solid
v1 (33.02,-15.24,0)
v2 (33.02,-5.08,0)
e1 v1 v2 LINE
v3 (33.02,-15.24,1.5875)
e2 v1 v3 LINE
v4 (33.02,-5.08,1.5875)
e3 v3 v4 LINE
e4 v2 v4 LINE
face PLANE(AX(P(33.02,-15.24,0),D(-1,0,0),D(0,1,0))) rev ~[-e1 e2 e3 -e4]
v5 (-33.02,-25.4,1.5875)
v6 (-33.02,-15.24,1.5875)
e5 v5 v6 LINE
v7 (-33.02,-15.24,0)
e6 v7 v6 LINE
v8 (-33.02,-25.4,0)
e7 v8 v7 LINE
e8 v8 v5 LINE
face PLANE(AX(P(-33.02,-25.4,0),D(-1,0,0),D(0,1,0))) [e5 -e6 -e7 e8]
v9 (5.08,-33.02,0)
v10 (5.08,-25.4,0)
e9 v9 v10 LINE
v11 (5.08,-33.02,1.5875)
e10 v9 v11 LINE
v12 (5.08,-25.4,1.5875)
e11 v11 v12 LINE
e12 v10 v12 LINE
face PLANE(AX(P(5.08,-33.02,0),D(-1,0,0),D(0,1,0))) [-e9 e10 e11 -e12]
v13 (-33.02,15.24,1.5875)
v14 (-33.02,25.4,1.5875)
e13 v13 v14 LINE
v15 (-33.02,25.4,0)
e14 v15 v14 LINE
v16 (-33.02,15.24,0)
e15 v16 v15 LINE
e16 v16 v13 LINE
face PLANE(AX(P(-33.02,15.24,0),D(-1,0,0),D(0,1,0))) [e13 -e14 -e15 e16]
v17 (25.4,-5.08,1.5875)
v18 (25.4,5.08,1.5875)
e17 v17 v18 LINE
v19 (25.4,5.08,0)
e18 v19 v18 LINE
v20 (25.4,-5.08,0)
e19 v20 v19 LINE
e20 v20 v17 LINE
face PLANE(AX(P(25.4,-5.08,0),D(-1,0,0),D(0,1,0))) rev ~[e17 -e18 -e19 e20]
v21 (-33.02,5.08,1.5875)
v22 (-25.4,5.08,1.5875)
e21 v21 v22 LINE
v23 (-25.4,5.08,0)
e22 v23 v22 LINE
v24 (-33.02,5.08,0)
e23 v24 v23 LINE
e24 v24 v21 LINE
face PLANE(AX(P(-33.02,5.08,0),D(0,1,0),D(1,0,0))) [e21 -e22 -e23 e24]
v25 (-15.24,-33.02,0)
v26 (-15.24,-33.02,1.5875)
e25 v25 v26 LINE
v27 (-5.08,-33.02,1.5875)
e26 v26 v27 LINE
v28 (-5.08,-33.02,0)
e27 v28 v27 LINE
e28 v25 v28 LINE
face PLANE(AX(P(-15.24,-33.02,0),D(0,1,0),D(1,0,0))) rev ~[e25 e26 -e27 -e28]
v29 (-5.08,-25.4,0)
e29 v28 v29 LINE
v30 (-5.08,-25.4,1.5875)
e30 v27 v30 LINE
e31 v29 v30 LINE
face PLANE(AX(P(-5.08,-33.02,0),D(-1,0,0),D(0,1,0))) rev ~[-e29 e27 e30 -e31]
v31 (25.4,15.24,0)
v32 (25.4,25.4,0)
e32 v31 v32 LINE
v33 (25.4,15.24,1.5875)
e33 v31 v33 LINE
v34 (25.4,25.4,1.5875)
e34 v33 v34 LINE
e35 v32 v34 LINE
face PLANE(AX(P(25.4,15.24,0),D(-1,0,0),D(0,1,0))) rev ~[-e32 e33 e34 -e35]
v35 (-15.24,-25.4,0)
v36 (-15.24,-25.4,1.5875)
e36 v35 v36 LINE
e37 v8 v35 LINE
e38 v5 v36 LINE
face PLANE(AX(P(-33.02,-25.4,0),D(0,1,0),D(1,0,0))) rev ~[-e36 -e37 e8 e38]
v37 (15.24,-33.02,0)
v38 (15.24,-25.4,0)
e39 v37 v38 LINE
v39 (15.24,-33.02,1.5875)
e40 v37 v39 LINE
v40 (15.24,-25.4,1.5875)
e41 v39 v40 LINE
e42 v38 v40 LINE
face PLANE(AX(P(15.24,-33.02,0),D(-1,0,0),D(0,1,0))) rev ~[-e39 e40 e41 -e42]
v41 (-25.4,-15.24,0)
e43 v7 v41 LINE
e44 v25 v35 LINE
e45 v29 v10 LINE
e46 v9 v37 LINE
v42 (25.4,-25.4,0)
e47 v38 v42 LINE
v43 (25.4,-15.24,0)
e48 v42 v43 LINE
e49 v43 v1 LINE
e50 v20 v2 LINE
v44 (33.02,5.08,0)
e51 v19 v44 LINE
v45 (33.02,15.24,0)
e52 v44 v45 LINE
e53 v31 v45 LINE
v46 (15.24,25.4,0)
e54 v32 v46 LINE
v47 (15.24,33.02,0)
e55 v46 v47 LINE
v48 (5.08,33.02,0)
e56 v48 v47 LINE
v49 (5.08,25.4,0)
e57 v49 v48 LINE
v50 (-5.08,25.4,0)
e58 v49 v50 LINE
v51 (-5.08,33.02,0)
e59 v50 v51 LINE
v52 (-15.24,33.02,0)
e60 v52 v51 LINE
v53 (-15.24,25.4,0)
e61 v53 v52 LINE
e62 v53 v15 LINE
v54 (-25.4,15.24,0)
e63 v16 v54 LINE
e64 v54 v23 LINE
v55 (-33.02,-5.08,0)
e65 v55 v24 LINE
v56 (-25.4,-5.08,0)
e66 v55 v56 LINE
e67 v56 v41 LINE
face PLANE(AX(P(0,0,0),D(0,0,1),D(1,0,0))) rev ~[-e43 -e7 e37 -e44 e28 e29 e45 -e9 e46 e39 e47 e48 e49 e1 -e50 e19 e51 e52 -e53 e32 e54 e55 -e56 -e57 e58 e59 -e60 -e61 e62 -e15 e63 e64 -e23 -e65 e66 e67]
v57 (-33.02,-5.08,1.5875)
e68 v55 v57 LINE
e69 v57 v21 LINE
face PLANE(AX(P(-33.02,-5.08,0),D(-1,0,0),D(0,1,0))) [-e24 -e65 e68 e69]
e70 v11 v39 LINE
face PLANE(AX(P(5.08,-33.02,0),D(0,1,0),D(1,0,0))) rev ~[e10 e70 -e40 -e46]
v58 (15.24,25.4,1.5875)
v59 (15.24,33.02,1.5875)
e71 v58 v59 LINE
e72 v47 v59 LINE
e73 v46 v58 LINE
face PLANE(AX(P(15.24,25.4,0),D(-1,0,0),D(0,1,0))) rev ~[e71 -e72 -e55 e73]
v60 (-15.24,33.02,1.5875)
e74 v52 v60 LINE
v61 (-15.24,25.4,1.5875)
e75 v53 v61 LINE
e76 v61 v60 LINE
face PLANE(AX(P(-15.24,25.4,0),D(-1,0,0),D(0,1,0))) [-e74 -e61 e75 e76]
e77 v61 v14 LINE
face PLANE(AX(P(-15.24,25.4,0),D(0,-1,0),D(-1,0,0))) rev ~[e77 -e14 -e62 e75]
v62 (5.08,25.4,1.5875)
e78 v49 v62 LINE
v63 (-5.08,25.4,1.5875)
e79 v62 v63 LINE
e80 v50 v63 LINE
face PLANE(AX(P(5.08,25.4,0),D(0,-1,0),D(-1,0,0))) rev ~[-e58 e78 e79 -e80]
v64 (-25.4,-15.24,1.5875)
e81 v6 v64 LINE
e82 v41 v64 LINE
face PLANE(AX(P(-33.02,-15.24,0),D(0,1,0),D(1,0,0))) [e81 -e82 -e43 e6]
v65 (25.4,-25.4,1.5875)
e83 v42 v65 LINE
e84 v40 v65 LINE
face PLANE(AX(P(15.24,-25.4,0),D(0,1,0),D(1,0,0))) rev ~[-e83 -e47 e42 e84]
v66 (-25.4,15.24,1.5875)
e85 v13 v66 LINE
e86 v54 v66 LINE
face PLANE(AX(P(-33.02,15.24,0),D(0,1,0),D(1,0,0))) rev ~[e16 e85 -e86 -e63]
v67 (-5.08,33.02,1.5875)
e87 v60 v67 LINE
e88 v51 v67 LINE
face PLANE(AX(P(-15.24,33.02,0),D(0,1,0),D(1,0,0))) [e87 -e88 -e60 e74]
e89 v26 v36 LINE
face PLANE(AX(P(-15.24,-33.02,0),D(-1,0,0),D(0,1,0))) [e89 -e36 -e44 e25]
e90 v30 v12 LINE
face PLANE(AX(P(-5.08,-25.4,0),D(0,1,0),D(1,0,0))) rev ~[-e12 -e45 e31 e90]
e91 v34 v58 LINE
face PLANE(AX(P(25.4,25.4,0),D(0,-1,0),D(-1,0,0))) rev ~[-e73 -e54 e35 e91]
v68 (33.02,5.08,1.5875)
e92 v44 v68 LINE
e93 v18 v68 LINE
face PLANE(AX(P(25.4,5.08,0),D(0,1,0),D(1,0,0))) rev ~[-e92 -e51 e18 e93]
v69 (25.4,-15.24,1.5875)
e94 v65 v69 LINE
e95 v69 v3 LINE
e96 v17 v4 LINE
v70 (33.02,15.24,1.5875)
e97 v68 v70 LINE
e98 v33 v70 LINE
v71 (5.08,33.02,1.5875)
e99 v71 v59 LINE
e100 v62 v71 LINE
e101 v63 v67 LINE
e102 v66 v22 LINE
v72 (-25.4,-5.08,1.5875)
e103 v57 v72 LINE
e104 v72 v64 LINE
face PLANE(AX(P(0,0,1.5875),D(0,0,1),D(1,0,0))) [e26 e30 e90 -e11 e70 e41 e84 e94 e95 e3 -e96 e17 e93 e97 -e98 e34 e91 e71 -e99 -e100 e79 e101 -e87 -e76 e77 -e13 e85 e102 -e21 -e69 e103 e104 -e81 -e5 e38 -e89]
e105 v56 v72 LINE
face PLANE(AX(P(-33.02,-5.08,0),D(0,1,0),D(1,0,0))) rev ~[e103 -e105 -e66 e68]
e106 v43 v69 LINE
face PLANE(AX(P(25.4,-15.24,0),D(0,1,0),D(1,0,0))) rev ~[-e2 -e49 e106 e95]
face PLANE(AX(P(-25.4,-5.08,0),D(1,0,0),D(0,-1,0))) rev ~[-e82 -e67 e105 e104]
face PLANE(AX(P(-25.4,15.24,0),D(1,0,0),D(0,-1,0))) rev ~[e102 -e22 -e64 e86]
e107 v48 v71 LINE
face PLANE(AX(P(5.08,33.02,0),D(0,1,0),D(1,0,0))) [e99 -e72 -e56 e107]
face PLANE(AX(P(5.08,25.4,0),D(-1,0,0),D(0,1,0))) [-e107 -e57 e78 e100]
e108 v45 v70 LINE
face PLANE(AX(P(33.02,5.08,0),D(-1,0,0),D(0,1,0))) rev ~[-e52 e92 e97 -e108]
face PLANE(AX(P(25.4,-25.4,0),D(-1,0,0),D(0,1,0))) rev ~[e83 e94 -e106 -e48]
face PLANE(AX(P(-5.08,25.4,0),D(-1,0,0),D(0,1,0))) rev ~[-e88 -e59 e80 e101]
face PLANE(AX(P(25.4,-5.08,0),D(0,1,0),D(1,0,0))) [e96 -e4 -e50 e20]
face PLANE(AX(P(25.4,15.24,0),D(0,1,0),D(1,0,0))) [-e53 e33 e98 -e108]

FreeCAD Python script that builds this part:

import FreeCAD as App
import Part
import Sketcher

V = App.Vector
Q = App.Units.Quantity

doc = App.newDocument("Part")
body = doc.addObject("PartDesign::Body", "Body")

# Sketch on XY plane
sketch1 = body.newObject("Sketcher::SketchObject", "Sketch")
sketch1.AttachmentSupport = (doc.getObject("XY_Plane"), [""])
sketch1.MapMode = "FlatFace"
sketch1.addGeometry([
    Part.LineSegment(V(25, 25, 0), V(15, 25, 0)),  # 0
    Part.LineSegment(V(15, 25, 0), V(15, 33, 0)),  # 1
    Part.LineSegment(V(15, 33, 0), V(5, 33, 0)),  # 2
    Part.LineSegment(V(5, 33, 0), V(5, 25, 0)),  # 3
    Part.LineSegment(V(5, 25, 0), V(-5, 25, 0)),  # 4
    Part.LineSegment(V(-5, 25, 0), V(-5, 33, 0)),  # 5
    Part.LineSegment(V(-5, 33, 0), V(-15, 33, 0)),  # 6
    Part.LineSegment(V(-15, 33, 0), V(-15, 25, 0)),  # 7
    Part.LineSegment(V(-15, 25, 0), V(-33, 25, 0)),  # 8
    Part.LineSegment(V(-33, 25, 0), V(-33, 15, 0)),  # 9
    Part.LineSegment(V(-33, 15, 0), V(-25, 15, 0)),  # 10
    Part.LineSegment(V(-25, 15, 0), V(-25, 5, 0)),  # 11
    Part.LineSegment(V(-25, 5, 0), V(-33, 5, 0)),  # 12
    Part.LineSegment(V(-33, 5, 0), V(-33, -5, 0)),  # 13
    Part.LineSegment(V(-33, -5, 0), V(-25, -5, 0)),  # 14
    Part.LineSegment(V(-25, -5, 0), V(-25, -15, 0)),  # 15
    Part.LineSegment(V(-25, -15, 0), V(-33, -15, 0)),  # 16
    Part.LineSegment(V(-33, -15, 0), V(-33, -25, 0)),  # 17
    Part.LineSegment(V(-33, -25, 0), V(-15, -25, 0)),  # 18
    Part.LineSegment(V(-15, -25, 0), V(-15, -33, 0)),  # 19
    Part.LineSegment(V(-15, -33, 0), V(-5, -33, 0)),  # 20
    Part.LineSegment(V(-5, -33, 0), V(-5, -25, 0)),  # 21
    Part.LineSegment(V(-5, -25, 0), V(5, -25, 0)),  # 22
    Part.LineSegment(V(5, -25, 0), V(5, -33, 0)),  # 23
    Part.LineSegment(V(5, -33, 0), V(15, -33, 0)),  # 24
    Part.LineSegment(V(15, -33, 0), V(15, -25, 0)),  # 25
    Part.LineSegment(V(15, -25, 0), V(25, -25, 0)),  # 26
    Part.LineSegment(V(25, -25, 0), V(25, -15, 0)),  # 27
    Part.LineSegment(V(25, -15, 0), V(33, -15, 0)),  # 28
    Part.LineSegment(V(33, -15, 0), V(33, -5, 0)),  # 29
    Part.LineSegment(V(33, -5, 0), V(25, -5, 0)),  # 30
    Part.LineSegment(V(25, -5, 0), V(25, 5, 0)),  # 31
    Part.LineSegment(V(25, 5, 0), V(33, 5, 0)),  # 32
    Part.LineSegment(V(33, 5, 0), V(33, 15, 0)),  # 33
    Part.LineSegment(V(33, 15, 0), V(25, 15, 0)),  # 34
    Part.LineSegment(V(25, 15, 0), V(25, 25, 0)),  # 35
], False)
sketch1.addConstraint([
    Sketcher.Constraint("Coincident", 0, 2, 1, 1),
    Sketcher.Constraint("Coincident", 1, 2, 2, 1),
    Sketcher.Constraint("Coincident", 2, 2, 3, 1),
    Sketcher.Constraint("Coincident", 3, 2, 4, 1),
    Sketcher.Constraint("Coincident", 4, 2, 5, 1),
    Sketcher.Constraint("Coincident", 5, 2, 6, 1),
    Sketcher.Constraint("Coincident", 6, 2, 7, 1),
    Sketcher.Constraint("Coincident", 7, 2, 8, 1),
    Sketcher.Constraint("Coincident", 8, 2, 9, 1),
    Sketcher.Constraint("Coincident", 9, 2, 10, 1),
    Sketcher.Constraint("Coincident", 10, 2, 11, 1),
    Sketcher.Constraint("Coincident", 11, 2, 12, 1),
    Sketcher.Constraint("Coincident", 12, 2, 13, 1),
    Sketcher.Constraint("Coincident", 13, 2, 14, 1),
    Sketcher.Constraint("Coincident", 14, 2, 15, 1),
    Sketcher.Constraint("Coincident", 15, 2, 16, 1),
    Sketcher.Constraint("Coincident", 16, 2, 17, 1),
    Sketcher.Constraint("Coincident", 17, 2, 18, 1),
    Sketcher.Constraint("Coincident", 18, 2, 19, 1),
    Sketcher.Constraint("Coincident", 19, 2, 20, 1),
    Sketcher.Constraint("Coincident", 20, 2, 21, 1),
    Sketcher.Constraint("Coincident", 21, 2, 22, 1),
    Sketcher.Constraint("Coincident", 22, 2, 23, 1),
    Sketcher.Constraint("Coincident", 23, 2, 24, 1),
    Sketcher.Constraint("Coincident", 24, 2, 25, 1),
    Sketcher.Constraint("Coincident", 25, 2, 26, 1),
    Sketcher.Constraint("Coincident", 26, 2, 27, 1),
    Sketcher.Constraint("Coincident", 27, 2, 28, 1),
    Sketcher.Constraint("Coincident", 28, 2, 29, 1),
    Sketcher.Constraint("Coincident", 29, 2, 30, 1),
    Sketcher.Constraint("Coincident", 30, 2, 31, 1),
    Sketcher.Constraint("Coincident", 31, 2, 32, 1),
    Sketcher.Constraint("Coincident", 32, 2, 33, 1),
    Sketcher.Constraint("Coincident", 33, 2, 34, 1),
    Sketcher.Constraint("Coincident", 34, 2, 35, 1),
    Sketcher.Constraint("Coincident", 35, 2, 0, 1),
    Sketcher.Constraint("Horizontal", 0),
    Sketcher.Constraint("Vertical", 1),
    Sketcher.Constraint("Horizontal", 2),
    Sketcher.Constraint("Vertical", 3),
    Sketcher.Constraint("Horizontal", 4),
    Sketcher.Constraint("Vertical", 5),
    Sketcher.Constraint("Horizontal", 6),
    Sketcher.Constraint("Vertical", 7),
    Sketcher.Constraint("Horizontal", 8),
    Sketcher.Constraint("Vertical", 9),
    Sketcher.Constraint("Horizontal", 10),
    Sketcher.Constraint("Vertical", 11),
    Sketcher.Constraint("Horizontal", 12),
    Sketcher.Constraint("Vertical", 13),
    Sketcher.Constraint("Horizontal", 14),
    Sketcher.Constraint("Vertical", 15),
    Sketcher.Constraint("Horizontal", 16),
    Sketcher.Constraint("Vertical", 17),
    Sketcher.Constraint("Horizontal", 18),
    Sketcher.Constraint("Vertical", 19),
    Sketcher.Constraint("Horizontal", 20),
    Sketcher.Constraint("Vertical", 21),
    Sketcher.Constraint("Horizontal", 22),
    Sketcher.Constraint("Vertical", 23),
    Sketcher.Constraint("Horizontal", 24),
    Sketcher.Constraint("Vertical", 25),
    Sketcher.Constraint("Horizontal", 26),
    Sketcher.Constraint("Vertical", 27),
    Sketcher.Constraint("Horizontal", 28),
    Sketcher.Constraint("Vertical", 29),
    Sketcher.Constraint("Horizontal", 30),
    Sketcher.Constraint("Vertical", 31),
    Sketcher.Constraint("Horizontal", 32),
    Sketcher.Constraint("Vertical", 33),
    Sketcher.Constraint("Horizontal", 34),
    Sketcher.Constraint("Vertical", 35),
    Sketcher.Constraint("Symmetric", 0, 2, 18, 2, -1, 1),
    Sketcher.Constraint("Symmetric", 2, 2, 20, 2, -1, 1),
    Sketcher.Constraint("Symmetric", 4, 2, 22, 2, -1, 1),
    Sketcher.Constraint("Symmetric", 6, 2, 24, 2, -1, 1),
    Sketcher.Constraint("Symmetric", 10, 2, 27, 2, -1, 1),
    Sketcher.Constraint("Symmetric", 12, 2, 29, 2, -1, 1),
    Sketcher.Constraint("Symmetric", 14, 2, 31, 2, -1, 1),
    Sketcher.Constraint("Symmetric", 16, 2, 33, 2, -1, 1),
    Sketcher.Constraint("Symmetric", 2, 2, 5, 2, -2),
    Sketcher.Constraint("Symmetric", 0, 2, 7, 2, -2),
    Sketcher.Constraint("Symmetric", 15, 2, 27, 2, -2),
    Sketcher.Constraint("Symmetric", 12, 2, 32, 2, -2),
    Sketcher.Constraint("Symmetric", 26, 2, 35, 2, -1),
    Sketcher.Constraint("Horizontal", 0, 2, 3, 2),
    Sketcher.Constraint("Vertical", 9, 2, 12, 2),
    Sketcher.Constraint("Equal", 0, 2),
    Sketcher.Constraint("Equal", 2, 4),
    Sketcher.Constraint("Equal", 34, 1),
    Sketcher.Constraint("Equal", 26, 9),
    Sketcher.Constraint("Equal", 9, 11),
    Sketcher.Constraint("Equal", 11, 13),
    Sketcher.Constraint("DistanceX", 0, 2, 0, 1, Q("0.4 in")),
    Sketcher.Constraint("DistanceX", 8, 2, 8, 1, Q("0.7 in")),
])
pad1 = body.newObject("PartDesign::Pad", "Pad")
pad1.Profile = sketch1
pad1.Length = Q("0.0625 in")

doc.recompute()
